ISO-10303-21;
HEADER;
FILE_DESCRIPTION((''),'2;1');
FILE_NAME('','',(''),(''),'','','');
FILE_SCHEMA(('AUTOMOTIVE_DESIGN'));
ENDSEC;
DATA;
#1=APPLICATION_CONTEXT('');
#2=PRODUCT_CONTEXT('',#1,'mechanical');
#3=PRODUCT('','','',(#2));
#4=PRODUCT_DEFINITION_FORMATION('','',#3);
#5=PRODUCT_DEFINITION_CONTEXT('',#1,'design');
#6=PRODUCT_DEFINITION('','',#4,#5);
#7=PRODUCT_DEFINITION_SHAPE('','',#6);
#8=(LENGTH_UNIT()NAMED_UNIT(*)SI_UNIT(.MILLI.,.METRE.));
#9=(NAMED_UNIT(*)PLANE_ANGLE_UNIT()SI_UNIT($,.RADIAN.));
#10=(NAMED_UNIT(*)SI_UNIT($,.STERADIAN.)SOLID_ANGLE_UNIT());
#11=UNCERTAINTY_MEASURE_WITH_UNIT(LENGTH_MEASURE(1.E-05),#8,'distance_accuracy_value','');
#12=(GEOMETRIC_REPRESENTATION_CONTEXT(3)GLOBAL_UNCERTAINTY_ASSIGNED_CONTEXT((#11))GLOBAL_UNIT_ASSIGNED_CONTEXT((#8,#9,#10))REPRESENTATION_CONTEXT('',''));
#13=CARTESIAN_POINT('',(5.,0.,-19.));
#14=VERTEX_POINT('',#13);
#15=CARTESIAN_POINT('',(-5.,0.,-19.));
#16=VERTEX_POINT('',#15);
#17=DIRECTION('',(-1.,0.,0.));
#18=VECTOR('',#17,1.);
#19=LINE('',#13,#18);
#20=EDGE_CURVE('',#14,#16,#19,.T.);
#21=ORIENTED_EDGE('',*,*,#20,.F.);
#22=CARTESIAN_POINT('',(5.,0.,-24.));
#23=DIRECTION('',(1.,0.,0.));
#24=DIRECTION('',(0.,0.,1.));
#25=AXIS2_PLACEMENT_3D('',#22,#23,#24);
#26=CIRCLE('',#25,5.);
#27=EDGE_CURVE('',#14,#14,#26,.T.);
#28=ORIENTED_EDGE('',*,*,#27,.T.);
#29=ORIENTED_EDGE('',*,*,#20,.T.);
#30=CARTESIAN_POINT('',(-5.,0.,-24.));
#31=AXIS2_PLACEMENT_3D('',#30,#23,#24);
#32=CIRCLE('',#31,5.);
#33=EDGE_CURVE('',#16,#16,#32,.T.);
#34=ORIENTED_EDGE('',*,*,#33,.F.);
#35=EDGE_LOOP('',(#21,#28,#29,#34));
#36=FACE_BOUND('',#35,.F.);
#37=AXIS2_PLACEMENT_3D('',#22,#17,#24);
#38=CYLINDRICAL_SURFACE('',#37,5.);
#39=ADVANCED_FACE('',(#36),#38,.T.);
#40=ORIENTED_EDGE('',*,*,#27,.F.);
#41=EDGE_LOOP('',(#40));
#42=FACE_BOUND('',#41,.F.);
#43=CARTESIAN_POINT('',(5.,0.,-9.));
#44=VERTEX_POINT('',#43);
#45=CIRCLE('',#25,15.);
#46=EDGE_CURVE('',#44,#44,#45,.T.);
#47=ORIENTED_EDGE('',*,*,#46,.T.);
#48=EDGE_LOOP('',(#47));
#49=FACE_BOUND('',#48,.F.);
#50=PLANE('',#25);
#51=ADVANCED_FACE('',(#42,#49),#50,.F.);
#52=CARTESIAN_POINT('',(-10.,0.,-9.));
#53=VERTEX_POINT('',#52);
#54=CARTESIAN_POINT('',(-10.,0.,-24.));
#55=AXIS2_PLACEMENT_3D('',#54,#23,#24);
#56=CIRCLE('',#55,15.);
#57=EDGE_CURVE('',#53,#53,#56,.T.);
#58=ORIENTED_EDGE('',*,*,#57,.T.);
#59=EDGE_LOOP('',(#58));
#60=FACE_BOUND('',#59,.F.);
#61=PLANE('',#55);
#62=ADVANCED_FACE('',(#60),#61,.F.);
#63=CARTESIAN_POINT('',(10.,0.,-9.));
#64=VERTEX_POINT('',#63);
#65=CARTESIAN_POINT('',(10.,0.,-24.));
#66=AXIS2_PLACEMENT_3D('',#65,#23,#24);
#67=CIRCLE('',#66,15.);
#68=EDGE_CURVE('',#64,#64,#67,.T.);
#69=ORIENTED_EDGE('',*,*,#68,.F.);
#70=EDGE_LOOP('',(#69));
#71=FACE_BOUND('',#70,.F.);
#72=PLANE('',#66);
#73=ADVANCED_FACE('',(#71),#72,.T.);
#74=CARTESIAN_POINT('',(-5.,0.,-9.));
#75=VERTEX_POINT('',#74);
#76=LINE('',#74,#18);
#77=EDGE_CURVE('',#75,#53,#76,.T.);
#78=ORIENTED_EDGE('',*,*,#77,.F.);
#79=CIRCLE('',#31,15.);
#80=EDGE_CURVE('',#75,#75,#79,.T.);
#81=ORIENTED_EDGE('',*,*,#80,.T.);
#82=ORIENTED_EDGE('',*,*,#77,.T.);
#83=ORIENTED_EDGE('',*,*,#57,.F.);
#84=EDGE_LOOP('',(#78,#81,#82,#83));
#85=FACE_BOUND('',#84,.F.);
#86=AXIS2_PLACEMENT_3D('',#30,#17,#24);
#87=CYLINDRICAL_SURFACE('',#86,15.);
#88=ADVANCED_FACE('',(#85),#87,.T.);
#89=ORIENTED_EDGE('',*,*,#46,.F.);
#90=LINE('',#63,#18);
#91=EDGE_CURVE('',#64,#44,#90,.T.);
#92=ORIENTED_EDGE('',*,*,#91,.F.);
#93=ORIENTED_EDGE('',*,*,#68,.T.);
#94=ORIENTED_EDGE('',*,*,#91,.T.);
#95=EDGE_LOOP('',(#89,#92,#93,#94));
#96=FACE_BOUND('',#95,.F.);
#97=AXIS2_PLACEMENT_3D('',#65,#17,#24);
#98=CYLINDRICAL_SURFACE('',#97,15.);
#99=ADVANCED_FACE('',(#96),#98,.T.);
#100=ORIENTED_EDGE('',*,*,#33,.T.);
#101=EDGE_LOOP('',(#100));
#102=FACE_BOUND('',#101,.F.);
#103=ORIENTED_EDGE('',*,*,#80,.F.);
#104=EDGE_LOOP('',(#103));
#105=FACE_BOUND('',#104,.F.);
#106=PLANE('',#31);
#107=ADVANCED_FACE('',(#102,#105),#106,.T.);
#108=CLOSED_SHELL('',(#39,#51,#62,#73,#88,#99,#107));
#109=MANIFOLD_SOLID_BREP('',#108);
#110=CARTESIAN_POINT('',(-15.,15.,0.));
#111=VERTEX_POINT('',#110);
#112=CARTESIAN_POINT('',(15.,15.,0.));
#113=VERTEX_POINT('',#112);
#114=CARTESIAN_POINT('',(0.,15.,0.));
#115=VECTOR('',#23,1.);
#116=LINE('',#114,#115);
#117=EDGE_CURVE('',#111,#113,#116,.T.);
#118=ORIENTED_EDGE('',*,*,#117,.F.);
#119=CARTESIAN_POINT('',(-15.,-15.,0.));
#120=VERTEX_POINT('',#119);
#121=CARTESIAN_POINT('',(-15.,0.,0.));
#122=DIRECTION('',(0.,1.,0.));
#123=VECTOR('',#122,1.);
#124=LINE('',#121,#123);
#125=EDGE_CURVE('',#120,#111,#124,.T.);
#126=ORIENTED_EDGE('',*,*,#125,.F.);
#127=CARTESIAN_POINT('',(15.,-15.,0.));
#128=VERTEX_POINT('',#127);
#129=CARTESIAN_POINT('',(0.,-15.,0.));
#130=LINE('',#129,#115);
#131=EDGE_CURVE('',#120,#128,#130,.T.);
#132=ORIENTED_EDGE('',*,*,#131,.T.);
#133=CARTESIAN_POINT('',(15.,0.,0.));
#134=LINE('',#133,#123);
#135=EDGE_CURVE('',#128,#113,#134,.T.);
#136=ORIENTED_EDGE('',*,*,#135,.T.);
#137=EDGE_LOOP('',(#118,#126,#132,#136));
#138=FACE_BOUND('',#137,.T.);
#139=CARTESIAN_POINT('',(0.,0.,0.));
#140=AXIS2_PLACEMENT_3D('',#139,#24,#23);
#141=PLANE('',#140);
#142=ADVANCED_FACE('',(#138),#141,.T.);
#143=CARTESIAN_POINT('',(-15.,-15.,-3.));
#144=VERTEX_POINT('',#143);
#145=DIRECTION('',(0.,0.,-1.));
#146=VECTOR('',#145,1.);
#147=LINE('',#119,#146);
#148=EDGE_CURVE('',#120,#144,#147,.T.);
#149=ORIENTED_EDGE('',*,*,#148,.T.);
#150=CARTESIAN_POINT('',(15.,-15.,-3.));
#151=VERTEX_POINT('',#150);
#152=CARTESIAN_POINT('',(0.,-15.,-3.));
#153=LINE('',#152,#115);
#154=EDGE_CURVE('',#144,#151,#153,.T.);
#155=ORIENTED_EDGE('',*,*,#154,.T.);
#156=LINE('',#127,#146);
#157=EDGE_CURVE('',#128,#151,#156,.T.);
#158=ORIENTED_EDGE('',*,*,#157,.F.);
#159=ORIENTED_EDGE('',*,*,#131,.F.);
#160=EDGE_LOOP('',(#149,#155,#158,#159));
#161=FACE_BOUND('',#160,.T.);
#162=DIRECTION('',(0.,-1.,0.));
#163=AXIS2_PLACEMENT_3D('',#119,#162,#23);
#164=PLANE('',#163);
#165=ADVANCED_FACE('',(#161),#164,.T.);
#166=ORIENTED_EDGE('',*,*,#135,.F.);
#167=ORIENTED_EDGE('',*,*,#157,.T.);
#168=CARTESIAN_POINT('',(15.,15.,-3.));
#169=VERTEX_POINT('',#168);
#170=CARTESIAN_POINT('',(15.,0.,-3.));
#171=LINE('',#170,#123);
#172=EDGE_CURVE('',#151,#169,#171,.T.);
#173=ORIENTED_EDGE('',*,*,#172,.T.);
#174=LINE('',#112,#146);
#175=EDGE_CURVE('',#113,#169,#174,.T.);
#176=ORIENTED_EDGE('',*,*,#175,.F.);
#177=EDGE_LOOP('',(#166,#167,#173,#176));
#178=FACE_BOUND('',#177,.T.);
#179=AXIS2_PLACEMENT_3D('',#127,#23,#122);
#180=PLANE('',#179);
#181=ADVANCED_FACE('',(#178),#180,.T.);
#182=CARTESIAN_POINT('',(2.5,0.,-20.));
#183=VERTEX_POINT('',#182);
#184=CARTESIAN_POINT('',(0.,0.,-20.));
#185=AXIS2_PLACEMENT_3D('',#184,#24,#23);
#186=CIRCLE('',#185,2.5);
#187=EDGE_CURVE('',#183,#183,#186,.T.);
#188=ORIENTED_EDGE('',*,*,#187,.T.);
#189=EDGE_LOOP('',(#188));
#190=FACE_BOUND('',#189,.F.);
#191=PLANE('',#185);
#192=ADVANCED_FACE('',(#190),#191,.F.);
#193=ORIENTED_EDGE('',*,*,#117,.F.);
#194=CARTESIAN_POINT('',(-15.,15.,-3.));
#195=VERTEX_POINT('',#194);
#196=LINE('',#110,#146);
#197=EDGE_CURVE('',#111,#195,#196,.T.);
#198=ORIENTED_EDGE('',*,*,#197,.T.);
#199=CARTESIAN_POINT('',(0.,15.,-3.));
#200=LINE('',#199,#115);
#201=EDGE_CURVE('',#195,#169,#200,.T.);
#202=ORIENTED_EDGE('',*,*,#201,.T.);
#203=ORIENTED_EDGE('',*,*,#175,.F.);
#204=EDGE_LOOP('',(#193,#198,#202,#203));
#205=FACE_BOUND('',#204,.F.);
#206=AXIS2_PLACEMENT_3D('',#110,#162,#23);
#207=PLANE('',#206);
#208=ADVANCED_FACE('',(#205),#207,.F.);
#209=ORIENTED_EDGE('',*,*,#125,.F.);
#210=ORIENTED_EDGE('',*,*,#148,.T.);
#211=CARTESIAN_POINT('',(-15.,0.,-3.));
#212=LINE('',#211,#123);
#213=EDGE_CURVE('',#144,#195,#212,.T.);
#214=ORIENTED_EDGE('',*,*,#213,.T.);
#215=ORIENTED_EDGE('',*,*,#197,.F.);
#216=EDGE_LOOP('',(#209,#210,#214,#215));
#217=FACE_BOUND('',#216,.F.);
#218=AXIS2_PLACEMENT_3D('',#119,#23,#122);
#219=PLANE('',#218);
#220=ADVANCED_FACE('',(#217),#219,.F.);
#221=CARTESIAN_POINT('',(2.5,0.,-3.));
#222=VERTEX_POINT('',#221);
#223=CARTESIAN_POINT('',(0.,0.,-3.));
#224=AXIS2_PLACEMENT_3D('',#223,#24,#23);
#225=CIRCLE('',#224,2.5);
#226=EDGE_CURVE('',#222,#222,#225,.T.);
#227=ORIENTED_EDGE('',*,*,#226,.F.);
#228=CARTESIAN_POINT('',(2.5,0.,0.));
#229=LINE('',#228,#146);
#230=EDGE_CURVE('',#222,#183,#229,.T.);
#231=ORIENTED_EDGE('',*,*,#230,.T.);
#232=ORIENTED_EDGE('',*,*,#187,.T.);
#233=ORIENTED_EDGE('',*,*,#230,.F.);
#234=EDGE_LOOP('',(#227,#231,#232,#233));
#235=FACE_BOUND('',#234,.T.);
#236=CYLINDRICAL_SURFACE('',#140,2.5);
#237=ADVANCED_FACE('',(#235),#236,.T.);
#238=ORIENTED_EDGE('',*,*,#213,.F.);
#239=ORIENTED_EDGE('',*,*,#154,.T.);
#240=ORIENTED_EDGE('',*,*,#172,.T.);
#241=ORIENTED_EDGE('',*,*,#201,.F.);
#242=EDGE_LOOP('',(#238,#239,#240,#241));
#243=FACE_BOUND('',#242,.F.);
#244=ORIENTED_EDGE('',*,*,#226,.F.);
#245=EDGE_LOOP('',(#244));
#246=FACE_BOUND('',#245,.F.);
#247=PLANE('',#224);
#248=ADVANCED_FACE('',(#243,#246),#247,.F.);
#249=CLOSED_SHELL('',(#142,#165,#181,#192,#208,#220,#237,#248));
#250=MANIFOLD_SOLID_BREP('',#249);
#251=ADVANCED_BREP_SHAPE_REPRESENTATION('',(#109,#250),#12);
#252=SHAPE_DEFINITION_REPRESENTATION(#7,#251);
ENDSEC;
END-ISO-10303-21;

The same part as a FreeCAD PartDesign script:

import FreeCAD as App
import Part
import Sketcher

doc = App.newDocument("Part")
params = doc.addObject("Spreadsheet::Sheet", "Params")
for row, (alias, value) in enumerate([
    ("sketch1_width", "30 mm"),
    ("pad1_length", "3 mm"),
    ("sketch2_diameter", "5 mm"),
    ("pad2_length", "20 mm"),
    ("sketch3_width", "20 mm"),
    ("sketch3_width2", "5 mm"),
    ("sketch3_height", "15 mm"),
    ("revolution_angle", "360 deg"),
], start=1):
    params.set(f"A{row}", alias)
    params.set(f"B{row}", "=" + value)
    params.setAlias(f"B{row}", alias)

body = doc.addObject("PartDesign::Body", "Body")

# Sketch on XY plane
sketch1 = body.newObject("Sketcher::SketchObject", "Sketch")
sketch1.AttachmentSupport = (doc.getObject("XY_Plane"), [""])
sketch1.MapMode = "FlatFace"
sketch1.addGeometry([
    Part.LineSegment(App.Vector(-15, 15, 0), App.Vector(-15, -15, 0)),
    Part.LineSegment(App.Vector(-15, -15, 0), App.Vector(15, -15, 0)),
    Part.LineSegment(App.Vector(15, -15, 0), App.Vector(15, 15, 0)),
    Part.LineSegment(App.Vector(15, 15, 0), App.Vector(-15, 15, 0)),
], False)
sketch1.addConstraint([
    Sketcher.Constraint("Coincident", 0, 2, 1, 1),
    Sketcher.Constraint("Coincident", 1, 2, 2, 1),
    Sketcher.Constraint("Coincident", 2, 2, 3, 1),
    Sketcher.Constraint("Coincident", 3, 2, 0, 1),
    Sketcher.Constraint("Vertical", 0),
    Sketcher.Constraint("Horizontal", 1),
    Sketcher.Constraint("Vertical", 2),
    Sketcher.Constraint("Horizontal", 3),
    Sketcher.Constraint("Symmetric", 0, 2, 2, 2, -1, 1),
    Sketcher.Constraint("Equal", 3, 0),
    Sketcher.Constraint("DistanceX", 1, 1, 1, 2, 30.0),
])
sketch1.setExpression("Constraints[10]", "Params.sketch1_width")
pad1 = body.newObject("PartDesign::Pad", "Pad")
pad1.Profile = sketch1
pad1.setExpression("Length", "Params.pad1_length")
pad1.Reversed = True

# Sketch on XY plane
sketch2 = body.newObject("Sketcher::SketchObject", "Sketch001")
sketch2.AttachmentSupport = (doc.getObject("XY_Plane"), [""])
sketch2.MapMode = "FlatFace"
sketch2.addGeometry(Part.Circle(App.Vector(0, 0, 0), App.Vector(0, 0, 1), 2.5), False)
sketch2.addConstraint([
    Sketcher.Constraint("Coincident", 0, 3, -1, 1),
    Sketcher.Constraint("Diameter", 0, 5.0),
])
sketch2.setExpression("Constraints[1]", "Params.sketch2_diameter")
pad2 = body.newObject("PartDesign::Pad", "Pad001")
pad2.Profile = sketch2
pad2.setExpression("Length", "Params.pad2_length")
pad2.Reversed = True
body2 = doc.addObject("PartDesign::Body", "Body001")

# Sketch on XZ plane
sketch3 = body2.newObject("Sketcher::SketchObject", "Sketch002")
sketch3.AttachmentSupport = (doc.getObject("XZ_Plane001"), [""])
sketch3.MapMode = "FlatFace"
sketch3.addGeometry([
    Part.LineSegment(App.Vector(-10, -9, 0), App.Vector(-10, -24, 0)),  # 0
    Part.LineSegment(App.Vector(-10, -24, 0), App.Vector(10, -24, 0)),  # 1
    Part.LineSegment(App.Vector(10, -24, 0), App.Vector(10, -9, 0)),  # 2
    Part.LineSegment(App.Vector(10, -9, 0), App.Vector(5, -9, 0)),  # 3
    Part.LineSegment(App.Vector(5, -9, 0), App.Vector(5, -19, 0)),  # 4
    Part.LineSegment(App.Vector(5, -19, 0), App.Vector(-5, -19, 0)),  # 5
    Part.LineSegment(App.Vector(-5, -19, 0), App.Vector(-5, -9, 0)),  # 6
    Part.LineSegment(App.Vector(-5, -9, 0), App.Vector(-10, -9, 0)),  # 7
], False)
sketch3.addGeometry(Part.LineSegment(App.Vector(-10, -24, 0), App.Vector(10, -24, 0)), True)  # axis
sketch3.addConstraint([
    Sketcher.Constraint("Coincident", 0, 2, 1, 1),
    Sketcher.Constraint("Coincident", 1, 2, 2, 1),
    Sketcher.Constraint("Coincident", 2, 2, 3, 1),
    Sketcher.Constraint("Coincident", 3, 2, 4, 1),
    Sketcher.Constraint("Coincident", 4, 2, 5, 1),
    Sketcher.Constraint("Coincident", 5, 2, 6, 1),
    Sketcher.Constraint("Coincident", 6, 2, 7, 1),
    Sketcher.Constraint("Coincident", 7, 2, 0, 1),
    Sketcher.Constraint("Vertical", 0),
    Sketcher.Constraint("Horizontal", 1),
    Sketcher.Constraint("Vertical", 2),
    Sketcher.Constraint("Horizontal", 3),
    Sketcher.Constraint("Vertical", 4),
    Sketcher.Constraint("Horizontal", 5),
    Sketcher.Constraint("Vertical", 6),
    Sketcher.Constraint("Horizontal", 7),
    Sketcher.Constraint("Horizontal", 8),
    Sketcher.Constraint("Coincident", 8, 1, 0, 2),
    Sketcher.Constraint("Symmetric", 3, 2, 6, 2, -2),
    Sketcher.Constraint("Vertical", 2, 2, 8, 2),
    Sketcher.Constraint("Equal", 3, 7),
    Sketcher.Constraint("Equal", 5, 4),
    Sketcher.Constraint("DistanceX", 1, 1, 1, 2, 20.0),
    Sketcher.Constraint("DistanceX", 3, 2, 3, 1, 5.0),
    Sketcher.Constraint("DistanceY", 0, 2, 0, 1, 15.0),
    Sketcher.Constraint("DistanceY", 0, 2, -1, 1, 24.0),
])
sketch3.setExpression("Constraints[22]", "Params.sketch3_width")
sketch3.setExpression("Constraints[23]", "Params.sketch3_width2")
sketch3.setExpression("Constraints[24]", "Params.sketch3_height")
revolution = body2.newObject("PartDesign::Revolution", "Revolution")
revolution.Profile = sketch3
revolution.ReferenceAxis = (sketch3, ["Axis0"])
revolution.setExpression("Angle", "Params.revolution_angle")

doc.recompute()
